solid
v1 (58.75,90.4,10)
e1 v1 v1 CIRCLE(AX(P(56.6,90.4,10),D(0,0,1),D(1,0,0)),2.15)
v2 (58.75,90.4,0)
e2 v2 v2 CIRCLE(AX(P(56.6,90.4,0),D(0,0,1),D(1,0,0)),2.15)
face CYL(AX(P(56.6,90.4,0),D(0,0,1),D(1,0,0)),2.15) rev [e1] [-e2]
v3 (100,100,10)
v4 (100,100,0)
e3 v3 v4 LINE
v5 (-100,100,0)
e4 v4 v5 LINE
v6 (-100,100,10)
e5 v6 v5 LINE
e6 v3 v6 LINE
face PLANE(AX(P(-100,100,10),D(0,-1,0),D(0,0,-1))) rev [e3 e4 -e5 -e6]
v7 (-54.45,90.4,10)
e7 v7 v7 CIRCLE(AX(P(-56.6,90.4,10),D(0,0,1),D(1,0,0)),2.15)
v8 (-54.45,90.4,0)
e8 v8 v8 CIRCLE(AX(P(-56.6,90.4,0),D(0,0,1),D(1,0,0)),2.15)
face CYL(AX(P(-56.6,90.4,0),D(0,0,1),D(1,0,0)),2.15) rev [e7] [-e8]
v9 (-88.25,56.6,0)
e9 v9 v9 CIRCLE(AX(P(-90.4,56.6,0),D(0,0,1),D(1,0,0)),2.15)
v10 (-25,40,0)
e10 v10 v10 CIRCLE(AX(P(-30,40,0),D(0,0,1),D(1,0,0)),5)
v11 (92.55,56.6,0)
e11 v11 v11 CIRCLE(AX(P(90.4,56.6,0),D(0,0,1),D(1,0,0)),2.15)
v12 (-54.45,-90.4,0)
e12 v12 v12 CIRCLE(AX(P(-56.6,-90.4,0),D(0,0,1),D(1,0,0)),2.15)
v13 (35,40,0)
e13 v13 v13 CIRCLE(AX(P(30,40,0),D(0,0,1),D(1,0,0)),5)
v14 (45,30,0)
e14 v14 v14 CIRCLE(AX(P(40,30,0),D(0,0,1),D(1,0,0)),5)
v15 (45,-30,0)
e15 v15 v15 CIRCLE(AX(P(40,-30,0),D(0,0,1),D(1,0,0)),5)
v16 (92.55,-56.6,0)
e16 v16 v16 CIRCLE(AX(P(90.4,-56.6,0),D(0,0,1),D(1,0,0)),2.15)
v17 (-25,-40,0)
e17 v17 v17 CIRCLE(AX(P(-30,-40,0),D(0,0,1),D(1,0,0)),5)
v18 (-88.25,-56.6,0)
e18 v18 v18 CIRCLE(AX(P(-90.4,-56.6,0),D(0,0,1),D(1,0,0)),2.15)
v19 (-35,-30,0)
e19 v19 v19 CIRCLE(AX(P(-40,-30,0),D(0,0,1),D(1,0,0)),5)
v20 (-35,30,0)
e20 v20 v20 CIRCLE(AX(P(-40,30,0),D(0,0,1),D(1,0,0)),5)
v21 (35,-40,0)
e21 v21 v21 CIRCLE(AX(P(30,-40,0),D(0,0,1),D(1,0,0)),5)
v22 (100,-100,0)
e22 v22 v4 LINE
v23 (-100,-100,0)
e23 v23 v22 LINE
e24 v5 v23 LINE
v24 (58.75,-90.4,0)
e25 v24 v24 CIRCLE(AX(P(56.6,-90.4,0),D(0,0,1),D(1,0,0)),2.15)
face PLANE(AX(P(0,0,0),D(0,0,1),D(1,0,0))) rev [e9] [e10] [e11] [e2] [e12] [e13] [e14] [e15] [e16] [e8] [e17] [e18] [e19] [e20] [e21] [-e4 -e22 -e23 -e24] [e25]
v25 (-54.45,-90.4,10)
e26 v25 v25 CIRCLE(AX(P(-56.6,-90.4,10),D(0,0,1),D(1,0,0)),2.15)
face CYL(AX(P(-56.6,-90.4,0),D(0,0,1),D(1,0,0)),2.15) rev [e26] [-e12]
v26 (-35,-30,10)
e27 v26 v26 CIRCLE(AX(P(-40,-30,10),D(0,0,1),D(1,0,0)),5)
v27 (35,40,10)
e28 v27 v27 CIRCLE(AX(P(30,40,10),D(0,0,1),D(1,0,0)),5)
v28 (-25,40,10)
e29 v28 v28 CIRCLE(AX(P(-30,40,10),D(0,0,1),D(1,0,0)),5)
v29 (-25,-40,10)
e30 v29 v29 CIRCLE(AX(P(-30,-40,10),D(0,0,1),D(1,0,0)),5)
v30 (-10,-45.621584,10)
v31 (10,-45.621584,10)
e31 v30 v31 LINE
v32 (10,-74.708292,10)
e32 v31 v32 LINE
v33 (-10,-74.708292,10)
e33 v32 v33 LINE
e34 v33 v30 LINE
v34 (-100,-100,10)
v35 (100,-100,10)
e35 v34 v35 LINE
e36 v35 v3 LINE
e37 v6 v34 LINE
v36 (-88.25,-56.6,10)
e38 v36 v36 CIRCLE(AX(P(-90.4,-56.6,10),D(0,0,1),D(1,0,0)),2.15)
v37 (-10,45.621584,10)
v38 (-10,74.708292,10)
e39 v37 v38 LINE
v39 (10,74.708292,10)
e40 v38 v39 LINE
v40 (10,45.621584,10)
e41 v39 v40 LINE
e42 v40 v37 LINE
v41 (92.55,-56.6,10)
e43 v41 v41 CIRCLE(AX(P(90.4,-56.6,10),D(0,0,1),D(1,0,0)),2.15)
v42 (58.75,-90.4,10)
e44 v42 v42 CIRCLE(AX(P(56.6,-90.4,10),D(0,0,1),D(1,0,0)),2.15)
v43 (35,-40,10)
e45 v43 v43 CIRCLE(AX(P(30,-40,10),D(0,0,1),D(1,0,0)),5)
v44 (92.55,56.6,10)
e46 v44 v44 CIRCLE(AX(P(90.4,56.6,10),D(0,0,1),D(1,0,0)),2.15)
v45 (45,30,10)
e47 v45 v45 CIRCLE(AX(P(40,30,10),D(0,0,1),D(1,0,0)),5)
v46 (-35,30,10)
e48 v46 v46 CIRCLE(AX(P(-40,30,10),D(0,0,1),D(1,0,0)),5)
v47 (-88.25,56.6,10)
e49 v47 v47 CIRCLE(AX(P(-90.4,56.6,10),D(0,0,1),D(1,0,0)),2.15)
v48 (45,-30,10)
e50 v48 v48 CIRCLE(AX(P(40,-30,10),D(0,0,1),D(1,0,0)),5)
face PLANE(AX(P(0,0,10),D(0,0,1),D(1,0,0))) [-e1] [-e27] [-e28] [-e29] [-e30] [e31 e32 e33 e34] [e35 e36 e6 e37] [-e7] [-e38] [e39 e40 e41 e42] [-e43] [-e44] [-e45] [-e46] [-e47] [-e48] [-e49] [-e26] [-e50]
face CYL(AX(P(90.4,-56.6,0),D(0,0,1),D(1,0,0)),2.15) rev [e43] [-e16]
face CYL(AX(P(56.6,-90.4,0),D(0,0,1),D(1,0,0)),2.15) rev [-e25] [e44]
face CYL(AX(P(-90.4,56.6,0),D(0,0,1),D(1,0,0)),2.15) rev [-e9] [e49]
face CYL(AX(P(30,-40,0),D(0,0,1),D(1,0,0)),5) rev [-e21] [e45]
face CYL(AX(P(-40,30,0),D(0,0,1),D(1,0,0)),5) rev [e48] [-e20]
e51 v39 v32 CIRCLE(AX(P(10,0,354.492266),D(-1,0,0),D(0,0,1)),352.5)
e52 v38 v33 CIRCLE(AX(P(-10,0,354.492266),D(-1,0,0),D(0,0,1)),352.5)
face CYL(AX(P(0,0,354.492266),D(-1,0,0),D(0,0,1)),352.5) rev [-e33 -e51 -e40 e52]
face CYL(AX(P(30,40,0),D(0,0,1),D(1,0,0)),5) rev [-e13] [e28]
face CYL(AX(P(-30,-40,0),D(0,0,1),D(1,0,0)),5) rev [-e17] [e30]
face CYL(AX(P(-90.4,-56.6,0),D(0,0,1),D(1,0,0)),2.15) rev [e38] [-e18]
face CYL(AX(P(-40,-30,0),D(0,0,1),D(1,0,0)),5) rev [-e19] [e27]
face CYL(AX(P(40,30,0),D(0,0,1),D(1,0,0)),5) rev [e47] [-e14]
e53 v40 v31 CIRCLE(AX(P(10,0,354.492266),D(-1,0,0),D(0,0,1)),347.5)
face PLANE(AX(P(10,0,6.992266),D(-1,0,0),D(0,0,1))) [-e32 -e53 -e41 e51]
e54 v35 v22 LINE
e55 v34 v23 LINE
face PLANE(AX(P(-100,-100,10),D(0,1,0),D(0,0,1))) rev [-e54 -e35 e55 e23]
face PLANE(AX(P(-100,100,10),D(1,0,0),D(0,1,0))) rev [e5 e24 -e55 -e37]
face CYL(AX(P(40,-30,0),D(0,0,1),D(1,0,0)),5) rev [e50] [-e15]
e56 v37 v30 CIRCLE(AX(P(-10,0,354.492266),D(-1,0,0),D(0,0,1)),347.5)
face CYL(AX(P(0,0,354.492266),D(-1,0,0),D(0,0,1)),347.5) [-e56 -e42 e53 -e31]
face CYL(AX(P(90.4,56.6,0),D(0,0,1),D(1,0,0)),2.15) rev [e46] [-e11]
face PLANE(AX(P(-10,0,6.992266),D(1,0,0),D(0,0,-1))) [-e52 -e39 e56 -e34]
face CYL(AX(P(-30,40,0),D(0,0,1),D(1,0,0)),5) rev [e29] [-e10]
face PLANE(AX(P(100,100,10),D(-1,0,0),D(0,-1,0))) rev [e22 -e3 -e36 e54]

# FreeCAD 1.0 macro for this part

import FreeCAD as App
import Part
import Sketcher

doc = App.newDocument("Part")
body = doc.addObject("PartDesign::Body", "Body")

# Sketch on XY plane
sketch1 = body.newObject("Sketcher::SketchObject", "Sketch")
sketch1.AttachmentSupport = (doc.getObject("XY_Plane"), [""])
sketch1.MapMode = "FlatFace"
sketch1.addGeometry(Part.LineSegment(App.Vector(-100, 100, 0), App.Vector(-100, -100, 0)), False)
sketch1.addGeometry(Part.LineSegment(App.Vector(-100, -100, 0), App.Vector(100, -100, 0)), False)
sketch1.addGeometry(Part.LineSegment(App.Vector(100, -100, 0), App.Vector(100, 100, 0)), False)
sketch1.addGeometry(Part.LineSegment(App.Vector(100, 100, 0), App.Vector(-100, 100, 0)), False)
sketch1.addConstraint(Sketcher.Constraint("Coincident", 0, 2, 1, 1))
sketch1.addConstraint(Sketcher.Constraint("Coincident", 1, 2, 2, 1))
sketch1.addConstraint(Sketcher.Constraint("Coincident", 2, 2, 3, 1))
sketch1.addConstraint(Sketcher.Constraint("Coincident", 3, 2, 0, 1))
sketch1.addConstraint(Sketcher.Constraint("Vertical", 0))
sketch1.addConstraint(Sketcher.Constraint("Horizontal", 1))
sketch1.addConstraint(Sketcher.Constraint("Vertical", 2))
sketch1.addConstraint(Sketcher.Constraint("Horizontal", 3))
sketch1.addConstraint(Sketcher.Constraint("Symmetric", 0, 2, 2, 2, -1, 1))
sketch1.addConstraint(Sketcher.Constraint("Equal", 3, 0))
sketch1.addConstraint(Sketcher.Constraint("DistanceX", 1, 1, 1, 2, 200.0))
pad1 = body.newObject("PartDesign::Pad", "Pad")
pad1.Profile = sketch1
pad1.Length = 10

# Sketch on XY plane
sketch2 = body.newObject("Sketcher::SketchObject", "Sketch001")
sketch2.AttachmentSupport = (doc.getObject("XY_Plane"), [""])
sketch2.MapMode = "FlatFace"
sketch2.AttachmentOffset = App.Placement(App.Vector(0, 0, 10), App.Rotation())
sketch2.addGeometry(Part.Circle(App.Vector(-40, 30, 0), App.Vector(0, 0, 1), 5), False)
sketch2.addGeometry(Part.Circle(App.Vector(40, 30, 0), App.Vector(0, 0, 1), 5), False)
sketch2.addGeometry(Part.Circle(App.Vector(40, -30, 0), App.Vector(0, 0, 1), 5), False)
sketch2.addGeometry(Part.Circle(App.Vector(-40, -30, 0), App.Vector(0, 0, 1), 5), False)
sketch2.addGeometry(Part.Circle(App.Vector(-30, 40, 0), App.Vector(0, 0, 1), 5), False)
sketch2.addGeometry(Part.Circle(App.Vector(30, 40, 0), App.Vector(0, 0, 1), 5), False)
sketch2.addGeometry(Part.Circle(App.Vector(30, -40, 0), App.Vector(0, 0, 1), 5), False)
sketch2.addGeometry(Part.Circle(App.Vector(-30, -40, 0), App.Vector(0, 0, 1), 5), False)
sketch2.addGeometry(Part.Circle(App.Vector(-56.6, 90.4, 0), App.Vector(0, 0, 1), 2.1), False)
sketch2.addGeometry(Part.Circle(App.Vector(-90.4, 56.6, 0), App.Vector(0, 0, 1), 2.1), False)
sketch2.addGeometry(Part.Circle(App.Vector(-90.4, -56.6, 0), App.Vector(0, 0, 1), 2.1), False)
sketch2.addGeometry(Part.Circle(App.Vector(-56.6, -90.4, 0), App.Vector(0, 0, 1), 2.1), False)
sketch2.addGeometry(Part.Circle(App.Vector(56.6, -90.4, 0), App.Vector(0, 0, 1), 2.1), False)
sketch2.addGeometry(Part.Circle(App.Vector(90.4, -56.6, 0), App.Vector(0, 0, 1), 2.1), False)
sketch2.addGeometry(Part.Circle(App.Vector(90.4, 56.6, 0), App.Vector(0, 0, 1), 2.1), False)
sketch2.addGeometry(Part.Circle(App.Vector(56.6, 90.4, 0), App.Vector(0, 0, 1), 2.1), False)
sketch2.addConstraint(Sketcher.Constraint("Equal", 0, 1))
sketch2.addConstraint(Sketcher.Constraint("Equal", 1, 2))
sketch2.addConstraint(Sketcher.Constraint("Equal", 2, 3))
sketch2.addConstraint(Sketcher.Constraint("Equal", 3, 4))
sketch2.addConstraint(Sketcher.Constraint("Equal", 4, 5))
sketch2.addConstraint(Sketcher.Constraint("Equal", 5, 6))
sketch2.addConstraint(Sketcher.Constraint("Equal", 6, 7))
sketch2.addConstraint(Sketcher.Constraint("Equal", 8, 9))
sketch2.addConstraint(Sketcher.Constraint("Equal", 9, 10))
sketch2.addConstraint(Sketcher.Constraint("Equal", 10, 11))
sketch2.addConstraint(Sketcher.Constraint("Equal", 11, 12))
sketch2.addConstraint(Sketcher.Constraint("Equal", 12, 13))
sketch2.addConstraint(Sketcher.Constraint("Equal", 13, 14))
sketch2.addConstraint(Sketcher.Constraint("Equal", 14, 15))
sketch2.addConstraint(Sketcher.Constraint("Symmetric", 0, 3, 2, 3, -1, 1))
sketch2.addConstraint(Sketcher.Constraint("Symmetric", 1, 3, 3, 3, -1, 1))
sketch2.addConstraint(Sketcher.Constraint("Symmetric", 4, 3, 6, 3, -1, 1))
sketch2.addConstraint(Sketcher.Constraint("Symmetric", 5, 3, 7, 3, -1, 1))
sketch2.addConstraint(Sketcher.Constraint("Symmetric", 8, 3, 12, 3, -1, 1))
sketch2.addConstraint(Sketcher.Constraint("Symmetric", 9, 3, 13, 3, -1, 1))
sketch2.addConstraint(Sketcher.Constraint("Symmetric", 10, 3, 14, 3, -1, 1))
sketch2.addConstraint(Sketcher.Constraint("Symmetric", 11, 3, 15, 3, -1, 1))
sketch2.addConstraint(Sketcher.Constraint("Symmetric", 0, 3, 1, 3, -2))
sketch2.addConstraint(Sketcher.Constraint("Symmetric", 4, 3, 5, 3, -2))
sketch2.addConstraint(Sketcher.Constraint("Symmetric", 11, 3, 12, 3, -2))
sketch2.addConstraint(Sketcher.Constraint("Symmetric", 10, 3, 13, 3, -2))
sketch2.addConstraint(Sketcher.Constraint("Diameter", 0, 10.0))
sketch2.addConstraint(Sketcher.Constraint("Diameter", 8, 4.3))
sketch2.addConstraint(Sketcher.Constraint("DistanceX", 0, 3, -1, 1, 40.0))
sketch2.addConstraint(Sketcher.Constraint("DistanceY", -1, 1, 0, 3, 30.0))
sketch2.addConstraint(Sketcher.Constraint("DistanceX", 4, 3, -1, 1, 30.0))
sketch2.addConstraint(Sketcher.Constraint("DistanceY", -1, 1, 4, 3, 40.0))
sketch2.addConstraint(Sketcher.Constraint("DistanceX", 8, 3, -1, 1, 56.6))
sketch2.addConstraint(Sketcher.Constraint("DistanceY", -1, 1, 8, 3, 90.4))
sketch2.addConstraint(Sketcher.Constraint("DistanceX", 9, 3, -1, 1, 90.4))
sketch2.addConstraint(Sketcher.Constraint("DistanceY", -1, 1, 9, 3, 56.6))
pocket1 = body.newObject("PartDesign::Pocket", "Pocket")
pocket1.Profile = sketch2
pocket1.Type = "ThroughAll"

# Sketch on XZ plane
sketch3 = body.newObject("Sketcher::SketchObject", "Sketch002")
sketch3.AttachmentSupport = (doc.getObject("XZ_Plane"), [""])
sketch3.MapMode = "FlatFace"
sketch3.addGeometry(Part.LineSegment(App.Vector(-10, 2, 0), App.Vector(-10, 7, 0)), False)
sketch3.addGeometry(Part.LineSegment(App.Vector(-10, 7, 0), App.Vector(10, 7, 0)), False)
sketch3.addGeometry(Part.LineSegment(App.Vector(10, 7, 0), App.Vector(10, 2, 0)), False)
sketch3.addGeometry(Part.LineSegment(App.Vector(10, 2, 0), App.Vector(-10, 2, 0)), False)
sketch3.addGeometry(Part.LineSegment(App.Vector(-10, 354, 0), App.Vector(10, 354, 0)), True)  # axis
sketch3.addConstraint(Sketcher.Constraint("Coincident", 0, 2, 1, 1))
sketch3.addConstraint(Sketcher.Constraint("Coincident", 1, 2, 2, 1))
sketch3.addConstraint(Sketcher.Constraint("Coincident", 2, 2, 3, 1))
sketch3.addConstraint(Sketcher.Constraint("Coincident", 3, 2, 0, 1))
sketch3.addConstraint(Sketcher.Constraint("Vertical", 0))
sketch3.addConstraint(Sketcher.Constraint("Horizontal", 1))
sketch3.addConstraint(Sketcher.Constraint("Vertical", 2))
sketch3.addConstraint(Sketcher.Constraint("Horizontal", 3))
sketch3.addConstraint(Sketcher.Constraint("Horizontal", 4))
sketch3.addConstraint(Sketcher.Constraint("Vertical", 3, 2, 4, 1))
sketch3.addConstraint(Sketcher.Constraint("Vertical", 2, 2, 4, 2))
sketch3.addConstraint(Sketcher.Constraint("DistanceX", 1, 1, 1, 2, 20.0))
sketch3.addConstraint(Sketcher.Constraint("DistanceY", 0, 1, 0, 2, 5.0))
sketch3.addConstraint(Sketcher.Constraint("DistanceX", 0, 2, -1, 1, 10.0))
sketch3.addConstraint(Sketcher.Constraint("DistanceY", 0, 2, 4, 1, 347.5))
sketch3.addConstraint(Sketcher.Constraint("DistanceY", -1, 1, 0, 2, 6.992266))
groove = body.newObject("PartDesign::Groove", "Groove")
groove.Profile = sketch3
groove.ReferenceAxis = (sketch3, ["Axis0"])
groove.Angle = 360

doc.recompute()
